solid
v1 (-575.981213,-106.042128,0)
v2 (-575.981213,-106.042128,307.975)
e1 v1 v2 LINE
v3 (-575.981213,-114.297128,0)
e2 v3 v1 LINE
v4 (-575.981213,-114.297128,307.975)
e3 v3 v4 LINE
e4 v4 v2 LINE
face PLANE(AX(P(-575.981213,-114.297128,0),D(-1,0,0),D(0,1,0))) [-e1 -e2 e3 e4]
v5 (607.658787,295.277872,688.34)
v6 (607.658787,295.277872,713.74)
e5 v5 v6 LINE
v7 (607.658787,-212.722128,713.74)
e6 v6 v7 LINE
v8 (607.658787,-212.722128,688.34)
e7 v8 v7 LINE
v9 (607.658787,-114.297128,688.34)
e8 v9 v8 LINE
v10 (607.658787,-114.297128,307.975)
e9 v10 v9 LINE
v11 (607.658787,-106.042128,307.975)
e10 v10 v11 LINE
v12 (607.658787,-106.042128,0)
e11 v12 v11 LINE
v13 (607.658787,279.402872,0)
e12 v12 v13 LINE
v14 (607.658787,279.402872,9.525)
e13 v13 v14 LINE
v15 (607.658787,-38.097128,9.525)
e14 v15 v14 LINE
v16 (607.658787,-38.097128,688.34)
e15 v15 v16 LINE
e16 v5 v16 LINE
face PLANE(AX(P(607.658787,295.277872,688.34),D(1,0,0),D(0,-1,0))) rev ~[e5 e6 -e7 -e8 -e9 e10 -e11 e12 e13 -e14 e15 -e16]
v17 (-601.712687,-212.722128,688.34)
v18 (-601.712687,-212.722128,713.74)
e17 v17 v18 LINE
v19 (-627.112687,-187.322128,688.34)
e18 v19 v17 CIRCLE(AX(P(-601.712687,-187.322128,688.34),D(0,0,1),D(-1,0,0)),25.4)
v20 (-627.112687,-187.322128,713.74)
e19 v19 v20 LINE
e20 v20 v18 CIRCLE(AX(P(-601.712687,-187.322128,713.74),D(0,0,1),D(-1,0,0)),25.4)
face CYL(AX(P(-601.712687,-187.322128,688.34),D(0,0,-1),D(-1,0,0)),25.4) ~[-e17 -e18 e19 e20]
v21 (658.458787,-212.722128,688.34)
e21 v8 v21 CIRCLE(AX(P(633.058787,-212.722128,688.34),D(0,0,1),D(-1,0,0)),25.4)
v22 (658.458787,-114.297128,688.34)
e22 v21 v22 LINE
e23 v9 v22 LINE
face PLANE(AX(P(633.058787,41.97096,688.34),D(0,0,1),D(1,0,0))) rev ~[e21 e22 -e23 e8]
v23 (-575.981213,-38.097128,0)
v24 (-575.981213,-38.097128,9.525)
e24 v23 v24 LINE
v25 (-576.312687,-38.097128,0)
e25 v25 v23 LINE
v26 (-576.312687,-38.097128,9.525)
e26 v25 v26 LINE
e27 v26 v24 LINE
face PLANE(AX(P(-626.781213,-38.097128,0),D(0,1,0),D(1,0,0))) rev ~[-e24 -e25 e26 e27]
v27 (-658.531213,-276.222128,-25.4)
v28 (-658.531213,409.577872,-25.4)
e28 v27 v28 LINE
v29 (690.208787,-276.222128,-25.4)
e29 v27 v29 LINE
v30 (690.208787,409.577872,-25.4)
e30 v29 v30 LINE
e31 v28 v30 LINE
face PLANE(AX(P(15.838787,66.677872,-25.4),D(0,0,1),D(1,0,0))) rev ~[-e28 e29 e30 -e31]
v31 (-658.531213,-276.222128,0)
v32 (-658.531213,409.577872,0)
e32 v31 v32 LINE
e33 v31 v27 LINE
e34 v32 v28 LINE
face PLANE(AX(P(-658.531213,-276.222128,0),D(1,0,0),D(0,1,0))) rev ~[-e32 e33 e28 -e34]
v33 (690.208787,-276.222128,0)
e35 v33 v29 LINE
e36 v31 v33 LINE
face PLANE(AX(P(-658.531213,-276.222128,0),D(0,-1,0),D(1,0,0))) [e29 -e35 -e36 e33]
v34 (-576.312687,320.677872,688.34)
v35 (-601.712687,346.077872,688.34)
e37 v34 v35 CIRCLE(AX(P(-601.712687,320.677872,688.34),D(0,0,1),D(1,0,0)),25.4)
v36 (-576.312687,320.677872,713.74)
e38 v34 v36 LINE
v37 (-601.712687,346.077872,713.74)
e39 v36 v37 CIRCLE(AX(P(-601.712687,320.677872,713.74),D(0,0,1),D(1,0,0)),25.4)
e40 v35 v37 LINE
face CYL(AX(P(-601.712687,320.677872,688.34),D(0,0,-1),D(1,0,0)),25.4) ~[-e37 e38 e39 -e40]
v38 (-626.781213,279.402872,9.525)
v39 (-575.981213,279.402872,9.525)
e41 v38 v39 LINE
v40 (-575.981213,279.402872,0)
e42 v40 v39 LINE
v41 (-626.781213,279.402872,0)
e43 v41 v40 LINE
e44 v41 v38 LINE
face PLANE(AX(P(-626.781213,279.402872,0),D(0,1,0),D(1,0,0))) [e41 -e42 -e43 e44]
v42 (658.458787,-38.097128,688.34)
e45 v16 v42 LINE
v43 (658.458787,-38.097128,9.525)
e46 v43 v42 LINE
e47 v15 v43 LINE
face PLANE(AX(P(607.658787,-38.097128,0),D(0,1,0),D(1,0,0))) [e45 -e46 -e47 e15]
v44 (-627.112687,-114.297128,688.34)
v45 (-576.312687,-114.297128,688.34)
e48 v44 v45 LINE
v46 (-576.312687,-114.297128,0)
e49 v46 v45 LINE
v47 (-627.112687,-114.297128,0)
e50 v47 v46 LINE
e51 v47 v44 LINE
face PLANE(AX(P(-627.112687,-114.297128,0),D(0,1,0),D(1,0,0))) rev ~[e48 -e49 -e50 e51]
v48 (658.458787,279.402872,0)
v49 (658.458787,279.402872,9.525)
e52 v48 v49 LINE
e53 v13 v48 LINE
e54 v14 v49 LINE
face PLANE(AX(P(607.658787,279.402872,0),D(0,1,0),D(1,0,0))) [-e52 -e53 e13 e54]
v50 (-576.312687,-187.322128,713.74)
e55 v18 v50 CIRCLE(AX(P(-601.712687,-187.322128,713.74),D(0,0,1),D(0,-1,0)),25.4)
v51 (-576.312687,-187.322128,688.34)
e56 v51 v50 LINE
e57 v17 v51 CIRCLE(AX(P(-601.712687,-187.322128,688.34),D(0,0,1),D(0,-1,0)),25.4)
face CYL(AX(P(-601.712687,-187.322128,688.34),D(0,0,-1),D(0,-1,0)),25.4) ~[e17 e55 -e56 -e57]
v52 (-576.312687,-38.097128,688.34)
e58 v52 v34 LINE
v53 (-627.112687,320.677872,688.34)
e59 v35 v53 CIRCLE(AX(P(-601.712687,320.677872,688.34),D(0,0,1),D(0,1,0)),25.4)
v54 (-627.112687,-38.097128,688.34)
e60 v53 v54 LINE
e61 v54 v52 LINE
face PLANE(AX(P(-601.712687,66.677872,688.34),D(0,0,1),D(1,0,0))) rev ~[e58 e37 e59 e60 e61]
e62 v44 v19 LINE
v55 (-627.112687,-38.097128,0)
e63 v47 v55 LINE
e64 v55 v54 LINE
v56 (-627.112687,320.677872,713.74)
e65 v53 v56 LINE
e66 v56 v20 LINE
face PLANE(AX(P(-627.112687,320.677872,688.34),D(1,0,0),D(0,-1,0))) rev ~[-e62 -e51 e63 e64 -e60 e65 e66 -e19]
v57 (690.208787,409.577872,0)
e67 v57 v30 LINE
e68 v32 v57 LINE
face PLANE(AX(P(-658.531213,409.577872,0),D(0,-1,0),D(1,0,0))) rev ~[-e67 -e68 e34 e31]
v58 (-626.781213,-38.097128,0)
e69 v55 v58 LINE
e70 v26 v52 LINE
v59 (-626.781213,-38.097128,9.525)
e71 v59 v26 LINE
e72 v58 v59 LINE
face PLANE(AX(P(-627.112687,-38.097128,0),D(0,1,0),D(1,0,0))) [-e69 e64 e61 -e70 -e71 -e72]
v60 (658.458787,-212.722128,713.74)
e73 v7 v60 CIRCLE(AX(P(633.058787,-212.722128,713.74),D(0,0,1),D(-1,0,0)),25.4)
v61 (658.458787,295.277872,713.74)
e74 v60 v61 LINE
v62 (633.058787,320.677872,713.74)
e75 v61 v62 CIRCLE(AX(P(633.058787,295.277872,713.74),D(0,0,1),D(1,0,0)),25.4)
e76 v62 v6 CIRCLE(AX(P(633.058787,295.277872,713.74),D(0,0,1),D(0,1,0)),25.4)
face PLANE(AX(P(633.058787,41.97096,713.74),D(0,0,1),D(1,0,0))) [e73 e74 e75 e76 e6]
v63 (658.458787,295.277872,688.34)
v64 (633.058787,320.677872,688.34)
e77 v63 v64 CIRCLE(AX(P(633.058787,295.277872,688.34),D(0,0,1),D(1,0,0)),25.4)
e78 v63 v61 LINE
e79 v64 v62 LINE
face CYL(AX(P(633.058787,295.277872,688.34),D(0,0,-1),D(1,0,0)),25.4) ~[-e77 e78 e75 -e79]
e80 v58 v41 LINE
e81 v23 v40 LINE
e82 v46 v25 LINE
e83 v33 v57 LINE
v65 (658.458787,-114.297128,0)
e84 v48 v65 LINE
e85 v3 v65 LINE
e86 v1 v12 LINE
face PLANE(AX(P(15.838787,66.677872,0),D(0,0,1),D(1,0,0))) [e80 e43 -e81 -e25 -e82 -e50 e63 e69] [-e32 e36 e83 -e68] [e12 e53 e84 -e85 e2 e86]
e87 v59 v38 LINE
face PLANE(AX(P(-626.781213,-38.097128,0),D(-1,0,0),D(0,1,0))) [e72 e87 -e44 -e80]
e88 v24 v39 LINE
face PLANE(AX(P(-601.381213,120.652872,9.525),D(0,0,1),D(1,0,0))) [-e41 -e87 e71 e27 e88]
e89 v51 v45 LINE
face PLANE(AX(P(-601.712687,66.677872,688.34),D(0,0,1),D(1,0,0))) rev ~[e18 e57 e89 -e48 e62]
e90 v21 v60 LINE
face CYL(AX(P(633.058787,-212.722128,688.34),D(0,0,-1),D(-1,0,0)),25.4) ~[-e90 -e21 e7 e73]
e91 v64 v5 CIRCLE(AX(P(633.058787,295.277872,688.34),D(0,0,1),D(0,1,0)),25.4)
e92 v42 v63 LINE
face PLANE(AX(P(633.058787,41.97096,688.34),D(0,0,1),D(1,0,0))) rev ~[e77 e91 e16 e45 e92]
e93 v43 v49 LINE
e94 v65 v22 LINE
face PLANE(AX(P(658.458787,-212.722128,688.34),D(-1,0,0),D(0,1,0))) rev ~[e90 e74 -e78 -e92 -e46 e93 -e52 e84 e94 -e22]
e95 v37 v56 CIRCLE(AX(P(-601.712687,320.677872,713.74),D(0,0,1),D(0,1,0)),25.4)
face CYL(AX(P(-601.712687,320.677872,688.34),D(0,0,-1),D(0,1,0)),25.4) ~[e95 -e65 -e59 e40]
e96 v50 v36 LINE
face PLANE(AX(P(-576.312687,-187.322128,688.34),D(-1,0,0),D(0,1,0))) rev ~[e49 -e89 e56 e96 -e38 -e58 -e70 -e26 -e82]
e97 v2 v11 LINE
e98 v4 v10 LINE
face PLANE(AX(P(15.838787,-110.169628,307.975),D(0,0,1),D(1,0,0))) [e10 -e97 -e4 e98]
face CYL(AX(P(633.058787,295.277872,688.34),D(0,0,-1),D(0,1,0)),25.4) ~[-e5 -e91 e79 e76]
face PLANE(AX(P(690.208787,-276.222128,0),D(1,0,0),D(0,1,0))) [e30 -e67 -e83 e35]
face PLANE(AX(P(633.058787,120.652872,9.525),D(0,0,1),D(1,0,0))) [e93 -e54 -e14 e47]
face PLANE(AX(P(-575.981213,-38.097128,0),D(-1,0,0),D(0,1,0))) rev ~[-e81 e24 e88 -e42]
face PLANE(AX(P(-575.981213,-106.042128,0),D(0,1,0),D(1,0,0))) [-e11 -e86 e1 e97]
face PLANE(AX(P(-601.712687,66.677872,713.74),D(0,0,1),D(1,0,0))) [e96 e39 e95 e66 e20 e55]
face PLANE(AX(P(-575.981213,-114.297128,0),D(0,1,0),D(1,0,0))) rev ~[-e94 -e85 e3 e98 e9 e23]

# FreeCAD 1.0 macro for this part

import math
import FreeCAD as App
import Part
import Sketcher

V = App.Vector
Q = App.Units.Quantity

doc = App.newDocument("Part")
body = doc.addObject("PartDesign::Body", "Body")

sketch1 = body.newObject("Sketcher::SketchObject", "Sketch")
sketch1.AttachmentSupport = (doc.getObject("XY_Plane"), [""])
sketch1.MapMode = "FlatFace"
sketch1.addGeometry(Part.LineSegment(V(-658.531213, 409.577872, 0), V(-658.531213, -276.222128, 0)), False)
sketch1.addGeometry(Part.LineSegment(V(-658.531213, -276.222128, 0), V(690.208787, -276.222128, 0)), False)
sketch1.addGeometry(Part.LineSegment(V(690.208787, -276.222128, 0), V(690.208787, 409.577872, 0)), False)
sketch1.addGeometry(Part.LineSegment(V(690.208787, 409.577872, 0), V(-658.531213, 409.577872, 0)), False)
sketch1.addConstraint(Sketcher.Constraint("Coincident", 0, 2, 1, 1))
sketch1.addConstraint(Sketcher.Constraint("Coincident", 1, 2, 2, 1))
sketch1.addConstraint(Sketcher.Constraint("Coincident", 2, 2, 3, 1))
sketch1.addConstraint(Sketcher.Constraint("Coincident", 3, 2, 0, 1))
sketch1.addConstraint(Sketcher.Constraint("Vertical", 0))
sketch1.addConstraint(Sketcher.Constraint("Horizontal", 1))
sketch1.addConstraint(Sketcher.Constraint("Vertical", 2))
sketch1.addConstraint(Sketcher.Constraint("Horizontal", 3))
sketch1.addConstraint(Sketcher.Constraint("DistanceY", 0, 2, 0, 1, Q("27 in")))
sketch1.addConstraint(Sketcher.Constraint("DistanceX", 1, 1, 1, 2, Q("53.1 in")))
sketch1.addConstraint(Sketcher.Constraint("DistanceY", 0, 2, -1, 1, Q("276.222128 mm")))
sketch1.addConstraint(Sketcher.Constraint("DistanceX", 0, 2, -1, 1, Q("658.531213 mm")))
pad1 = body.newObject("PartDesign::Pad", "Pad")
pad1.Profile = sketch1
pad1.Length = Q("1 in")
pad1.Reversed = True

sketch2 = body.newObject("Sketcher::SketchObject", "Sketch001")
sketch2.AttachmentSupport = (doc.getObject("XY_Plane"), [""])
sketch2.MapMode = "FlatFace"
sketch2.addGeometry(Part.LineSegment(V(-626.781213, 279.402872, 0), V(-626.781213, -38.097128, 0)), False)
sketch2.addGeometry(Part.LineSegment(V(-626.781213, -38.097128, 0), V(-575.981213, -38.097128, 0)), False)
sketch2.addGeometry(Part.LineSegment(V(-575.981213, -38.097128, 0), V(-575.981213, 279.402872, 0)), False)
sketch2.addGeometry(Part.LineSegment(V(-575.981213, 279.402872, 0), V(-626.781213, 279.402872, 0)), False)
sketch2.addGeometry(Part.LineSegment(V(607.658787, 279.402872, 0), V(607.658787, -38.097128, 0)), False)
sketch2.addGeometry(Part.LineSegment(V(607.658787, -38.097128, 0), V(658.458787, -38.097128, 0)), False)
sketch2.addGeometry(Part.LineSegment(V(658.458787, -38.097128, 0), V(658.458787, 279.402872, 0)), False)
sketch2.addGeometry(Part.LineSegment(V(658.458787, 279.402872, 0), V(607.658787, 279.402872, 0)), False)
sketch2.addConstraint(Sketcher.Constraint("Coincident", 0, 2, 1, 1))
sketch2.addConstraint(Sketcher.Constraint("Coincident", 1, 2, 2, 1))
sketch2.addConstraint(Sketcher.Constraint("Coincident", 2, 2, 3, 1))
sketch2.addConstraint(Sketcher.Constraint("Coincident", 3, 2, 0, 1))
sketch2.addConstraint(Sketcher.Constraint("Coincident", 4, 2, 5, 1))
sketch2.addConstraint(Sketcher.Constraint("Coincident", 5, 2, 6, 1))
sketch2.addConstraint(Sketcher.Constraint("Coincident", 6, 2, 7, 1))
sketch2.addConstraint(Sketcher.Constraint("Coincident", 7, 2, 4, 1))
sketch2.addConstraint(Sketcher.Constraint("Vertical", 0))
sketch2.addConstraint(Sketcher.Constraint("Horizontal", 1))
sketch2.addConstraint(Sketcher.Constraint("Vertical", 2))
sketch2.addConstraint(Sketcher.Constraint("Horizontal", 3))
sketch2.addConstraint(Sketcher.Constraint("Vertical", 4))
sketch2.addConstraint(Sketcher.Constraint("Horizontal", 5))
sketch2.addConstraint(Sketcher.Constraint("Vertical", 6))
sketch2.addConstraint(Sketcher.Constraint("Horizontal", 7))
sketch2.addConstraint(Sketcher.Constraint("Horizontal", 1, 2, 4, 2))
sketch2.addConstraint(Sketcher.Constraint("Horizontal", 3, 2, 6, 2))
sketch2.addConstraint(Sketcher.Constraint("Equal", 3, 5))
sketch2.addConstraint(Sketcher.Constraint("DistanceX", 1, 1, 1, 2, Q("2 in")))
sketch2.addConstraint(Sketcher.Constraint("DistanceY", 0, 2, 0, 1, Q("12.5 in")))
sketch2.addConstraint(Sketcher.Constraint("DistanceX", 1, 2, 4, 2, Q("46.6 in")))
sketch2.addConstraint(Sketcher.Constraint("DistanceY", 0, 2, -1, 1, Q("38.097128 mm")))
sketch2.addConstraint(Sketcher.Constraint("DistanceX", 0, 2, -1, 1, Q("626.781213 mm")))
pad2 = body.newObject("PartDesign::Pad", "Pad001")
pad2.Profile = sketch2
pad2.Length = Q("0.375 in")

sketch3 = body.newObject("Sketcher::SketchObject", "Sketch002")
sketch3.AttachmentSupport = (doc.getObject("XY_Plane"), [""])
sketch3.MapMode = "FlatFace"
sketch3.addGeometry(Part.LineSegment(V(-627.112687, -38.097128, 0), V(-627.112687, -114.297128, 0)), False)
sketch3.addGeometry(Part.LineSegment(V(-627.112687, -114.297128, 0), V(-576.312687, -114.297128, 0)), False)
sketch3.addGeometry(Part.LineSegment(V(-576.312687, -114.297128, 0), V(-576.312687, -38.097128, 0)), False)
sketch3.addGeometry(Part.LineSegment(V(-576.312687, -38.097128, 0), V(-627.112687, -38.097128, 0)), False)
sketch3.addGeometry(Part.LineSegment(V(607.658787, -38.097128, 0), V(607.658787, -114.297128, 0)), False)
sketch3.addGeometry(Part.LineSegment(V(607.658787, -114.297128, 0), V(658.458787, -114.297128, 0)), False)
sketch3.addGeometry(Part.LineSegment(V(658.458787, -114.297128, 0), V(658.458787, -38.097128, 0)), False)
sketch3.addGeometry(Part.LineSegment(V(658.458787, -38.097128, 0), V(607.658787, -38.097128, 0)), False)
sketch3.addConstraint(Sketcher.Constraint("Coincident", 0, 2, 1, 1))
sketch3.addConstraint(Sketcher.Constraint("Coincident", 1, 2, 2, 1))
sketch3.addConstraint(Sketcher.Constraint("Coincident", 2, 2, 3, 1))
sketch3.addConstraint(Sketcher.Constraint("Coincident", 3, 2, 0, 1))
sketch3.addConstraint(Sketcher.Constraint("Coincident", 4, 2, 5, 1))
sketch3.addConstraint(Sketcher.Constraint("Coincident", 5, 2, 6, 1))
sketch3.addConstraint(Sketcher.Constraint("Coincident", 6, 2, 7, 1))
sketch3.addConstraint(Sketcher.Constraint("Coincident", 7, 2, 4, 1))
sketch3.addConstraint(Sketcher.Constraint("Vertical", 0))
sketch3.addConstraint(Sketcher.Constraint("Horizontal", 1))
sketch3.addConstraint(Sketcher.Constraint("Vertical", 2))
sketch3.addConstraint(Sketcher.Constraint("Horizontal", 3))
sketch3.addConstraint(Sketcher.Constraint("Vertical", 4))
sketch3.addConstraint(Sketcher.Constraint("Horizontal", 5))
sketch3.addConstraint(Sketcher.Constraint("Vertical", 6))
sketch3.addConstraint(Sketcher.Constraint("Horizontal", 7))
sketch3.addConstraint(Sketcher.Constraint("Horizontal", 1, 2, 4, 2))
sketch3.addConstraint(Sketcher.Constraint("Horizontal", 3, 2, 6, 2))
sketch3.addConstraint(Sketcher.Constraint("Equal", 3, 5))
sketch3.addConstraint(Sketcher.Constraint("DistanceX", 1, 1, 1, 2, Q("2 in")))
sketch3.addConstraint(Sketcher.Constraint("DistanceY", 0, 2, 0, 1, Q("3 in")))
sketch3.addConstraint(Sketcher.Constraint("DistanceY", 0, 2, -1, 1, Q("114.297128 mm")))
sketch3.addConstraint(Sketcher.Constraint("DistanceX", 0, 2, -1, 1, Q("627.112687 mm")))
sketch3.addConstraint(Sketcher.Constraint("DistanceX", -1, 1, 4, 2, Q("607.658787 mm")))
pad3 = body.newObject("PartDesign::Pad", "Pad002")
pad3.Profile = sketch3
pad3.Length = Q("27.1 in")

sketch4 = body.newObject("Sketcher::SketchObject", "Sketch003")
sketch4.AttachmentSupport = (doc.getObject("XY_Plane"), [""])
sketch4.MapMode = "FlatFace"
sketch4.AttachmentOffset = App.Placement(V(0, 0, 27.1 * 25.4), App.Rotation())
sketch4.addGeometry(Part.ArcOfCircle(Part.Circle(V(-601.712687, -187.322128, 0), V(0, 0, 1), 25.4), math.radians(-90), math.radians(0)), False)
sketch4.addGeometry(Part.LineSegment(V(-576.312687, -187.322128, 0), V(-576.312687, 320.677872, 0)), False)
sketch4.addGeometry(Part.ArcOfCircle(Part.Circle(V(-601.712687, 320.677872, 0), V(0, 0, 1), 25.4), math.radians(0), math.radians(90)), False)
sketch4.addGeometry(Part.ArcOfCircle(Part.Circle(V(-601.712687, 320.677872, 0), V(0, 0, 1), 25.4), math.radians(90), math.radians(180)), False)
sketch4.addGeometry(Part.LineSegment(V(-627.112687, 320.677872, 0), V(-627.112687, -187.322128, 0)), False)
sketch4.addGeometry(Part.ArcOfCircle(Part.Circle(V(-601.712687, -187.322128, 0), V(0, 0, 1), 25.4), math.radians(180), math.radians(270)), False)
sketch4.addConstraint(Sketcher.Constraint("Tangent", 0, 2, 1, 1))
sketch4.addConstraint(Sketcher.Constraint("Tangent", 1, 2, 2, 1))
sketch4.addConstraint(Sketcher.Constraint("Tangent", 2, 2, 3, 1))
sketch4.addConstraint(Sketcher.Constraint("Tangent", 3, 2, 4, 1))
sketch4.addConstraint(Sketcher.Constraint("Tangent", 4, 2, 5, 1))
sketch4.addConstraint(Sketcher.Constraint("Tangent", 5, 2, 0, 1))
sketch4.addConstraint(Sketcher.Constraint("Vertical", 1))
sketch4.addConstraint(Sketcher.Constraint("Vertical", 4))
sketch4.addConstraint(Sketcher.Constraint("Equal", 0, 2))
sketch4.addConstraint(Sketcher.Constraint("Equal", 2, 3))
sketch4.addConstraint(Sketcher.Constraint("Vertical", 5, 3, 2, 2))
sketch4.addConstraint(Sketcher.Constraint("Vertical", 2, 2, 5, 2))
sketch4.addConstraint(Sketcher.Constraint("Radius", 0, Q("1 in")))
sketch4.addConstraint(Sketcher.Constraint("DistanceY", 1, 1, 1, 2, Q("20 in")))
sketch4.addConstraint(Sketcher.Constraint("DistanceY", 0, 3, -1, 1, Q("187.322128 mm")))
sketch4.addConstraint(Sketcher.Constraint("DistanceX", 0, 3, -1, 1, Q("601.712687 mm")))
pad4 = body.newObject("PartDesign::Pad", "Pad003")
pad4.Profile = sketch4
pad4.Length = Q("1 in")

sketch5 = body.newObject("Sketcher::SketchObject", "Sketch004")
sketch5.AttachmentSupport = (doc.getObject("XY_Plane"), [""])
sketch5.MapMode = "FlatFace"
sketch5.AttachmentOffset = App.Placement(V(0, 0, 27.1 * 25.4), App.Rotation())
sketch5.addGeometry(Part.ArcOfCircle(Part.Circle(V(633.058787, -212.722128, 0), V(0, 0, 1), 25.4), math.radians(-180), math.radians(0)), False)
sketch5.addGeometry(Part.LineSegment(V(658.458787, -212.722128, 0), V(658.458787, 295.277872, 0)), False)
sketch5.addGeometry(Part.ArcOfCircle(Part.Circle(V(633.058787, 295.277872, 0), V(0, 0, 1), 25.4), math.radians(0), math.radians(90)), False)
sketch5.addGeometry(Part.ArcOfCircle(Part.Circle(V(633.058787, 295.277872, 0), V(0, 0, 1), 25.4), math.radians(90), math.radians(180)), False)
sketch5.addGeometry(Part.LineSegment(V(607.658787, 295.277872, 0), V(607.658787, -212.722128, 0)), False)
sketch5.addConstraint(Sketcher.Constraint("Tangent", 0, 2, 1, 1))
sketch5.addConstraint(Sketcher.Constraint("Tangent", 1, 2, 2, 1))
sketch5.addConstraint(Sketcher.Constraint("Tangent", 2, 2, 3, 1))
sketch5.addConstraint(Sketcher.Constraint("Tangent", 3, 2, 4, 1))
sketch5.addConstraint(Sketcher.Constraint("Tangent", 4, 2, 0, 1))
sketch5.addConstraint(Sketcher.Constraint("Vertical", 1))
sketch5.addConstraint(Sketcher.Constraint("Vertical", 4))
sketch5.addConstraint(Sketcher.Constraint("Equal", 0, 2))
sketch5.addConstraint(Sketcher.Constraint("Vertical", 3, 3, 2, 2))
sketch5.addConstraint(Sketcher.Constraint("Radius", 0, Q("1 in")))
sketch5.addConstraint(Sketcher.Constraint("DistanceY", 1, 1, 1, 2, Q("20 in")))
sketch5.addConstraint(Sketcher.Constraint("DistanceY", 0, 3, -1, 1, Q("212.722128 mm")))
sketch5.addConstraint(Sketcher.Constraint("DistanceX", -1, 1, 0, 3, Q("633.058787 mm")))
pad5 = body.newObject("PartDesign::Pad", "Pad004")
pad5.Profile = sketch5
pad5.Length = Q("1 in")

sketch6 = body.newObject("Sketcher::SketchObject", "Sketch005")
sketch6.AttachmentSupport = (doc.getObject("XY_Plane"), [""])
sketch6.MapMode = "FlatFace"
sketch6.addGeometry(Part.LineSegment(V(-575.981213, -106.042128, 0), V(-575.981213, -114.297128, 0)), False)
sketch6.addGeometry(Part.LineSegment(V(-575.981213, -114.297128, 0), V(607.658787, -114.297128, 0)), False)
sketch6.addGeometry(Part.LineSegment(V(607.658787, -114.297128, 0), V(607.658787, -106.042128, 0)), False)
sketch6.addGeometry(Part.LineSegment(V(607.658787, -106.042128, 0), V(-575.981213, -106.042128, 0)), False)
sketch6.addConstraint(Sketcher.Constraint("Coincident", 0, 2, 1, 1))
sketch6.addConstraint(Sketcher.Constraint("Coincident", 1, 2, 2, 1))
sketch6.addConstraint(Sketcher.Constraint("Coincident", 2, 2, 3, 1))
sketch6.addConstraint(Sketcher.Constraint("Coincident", 3, 2, 0, 1))
sketch6.addConstraint(Sketcher.Constraint("Vertical", 0))
sketch6.addConstraint(Sketcher.Constraint("Horizontal", 1))
sketch6.addConstraint(Sketcher.Constraint("Vertical", 2))
sketch6.addConstraint(Sketcher.Constraint("Horizontal", 3))
sketch6.addConstraint(Sketcher.Constraint("DistanceX", 1, 1, 1, 2, Q("46.6 in")))
sketch6.addConstraint(Sketcher.Constraint("DistanceY", 0, 2, 0, 1, Q("0.325 in")))
sketch6.addConstraint(Sketcher.Constraint("DistanceY", 0, 2, -1, 1, Q("114.297128 mm")))
sketch6.addConstraint(Sketcher.Constraint("DistanceX", 0, 2, -1, 1, Q("575.981213 mm")))
pad6 = body.newObject("PartDesign::Pad", "Pad005")
pad6.Profile = sketch6
pad6.Length = Q("12.125 in")

doc.recompute()
